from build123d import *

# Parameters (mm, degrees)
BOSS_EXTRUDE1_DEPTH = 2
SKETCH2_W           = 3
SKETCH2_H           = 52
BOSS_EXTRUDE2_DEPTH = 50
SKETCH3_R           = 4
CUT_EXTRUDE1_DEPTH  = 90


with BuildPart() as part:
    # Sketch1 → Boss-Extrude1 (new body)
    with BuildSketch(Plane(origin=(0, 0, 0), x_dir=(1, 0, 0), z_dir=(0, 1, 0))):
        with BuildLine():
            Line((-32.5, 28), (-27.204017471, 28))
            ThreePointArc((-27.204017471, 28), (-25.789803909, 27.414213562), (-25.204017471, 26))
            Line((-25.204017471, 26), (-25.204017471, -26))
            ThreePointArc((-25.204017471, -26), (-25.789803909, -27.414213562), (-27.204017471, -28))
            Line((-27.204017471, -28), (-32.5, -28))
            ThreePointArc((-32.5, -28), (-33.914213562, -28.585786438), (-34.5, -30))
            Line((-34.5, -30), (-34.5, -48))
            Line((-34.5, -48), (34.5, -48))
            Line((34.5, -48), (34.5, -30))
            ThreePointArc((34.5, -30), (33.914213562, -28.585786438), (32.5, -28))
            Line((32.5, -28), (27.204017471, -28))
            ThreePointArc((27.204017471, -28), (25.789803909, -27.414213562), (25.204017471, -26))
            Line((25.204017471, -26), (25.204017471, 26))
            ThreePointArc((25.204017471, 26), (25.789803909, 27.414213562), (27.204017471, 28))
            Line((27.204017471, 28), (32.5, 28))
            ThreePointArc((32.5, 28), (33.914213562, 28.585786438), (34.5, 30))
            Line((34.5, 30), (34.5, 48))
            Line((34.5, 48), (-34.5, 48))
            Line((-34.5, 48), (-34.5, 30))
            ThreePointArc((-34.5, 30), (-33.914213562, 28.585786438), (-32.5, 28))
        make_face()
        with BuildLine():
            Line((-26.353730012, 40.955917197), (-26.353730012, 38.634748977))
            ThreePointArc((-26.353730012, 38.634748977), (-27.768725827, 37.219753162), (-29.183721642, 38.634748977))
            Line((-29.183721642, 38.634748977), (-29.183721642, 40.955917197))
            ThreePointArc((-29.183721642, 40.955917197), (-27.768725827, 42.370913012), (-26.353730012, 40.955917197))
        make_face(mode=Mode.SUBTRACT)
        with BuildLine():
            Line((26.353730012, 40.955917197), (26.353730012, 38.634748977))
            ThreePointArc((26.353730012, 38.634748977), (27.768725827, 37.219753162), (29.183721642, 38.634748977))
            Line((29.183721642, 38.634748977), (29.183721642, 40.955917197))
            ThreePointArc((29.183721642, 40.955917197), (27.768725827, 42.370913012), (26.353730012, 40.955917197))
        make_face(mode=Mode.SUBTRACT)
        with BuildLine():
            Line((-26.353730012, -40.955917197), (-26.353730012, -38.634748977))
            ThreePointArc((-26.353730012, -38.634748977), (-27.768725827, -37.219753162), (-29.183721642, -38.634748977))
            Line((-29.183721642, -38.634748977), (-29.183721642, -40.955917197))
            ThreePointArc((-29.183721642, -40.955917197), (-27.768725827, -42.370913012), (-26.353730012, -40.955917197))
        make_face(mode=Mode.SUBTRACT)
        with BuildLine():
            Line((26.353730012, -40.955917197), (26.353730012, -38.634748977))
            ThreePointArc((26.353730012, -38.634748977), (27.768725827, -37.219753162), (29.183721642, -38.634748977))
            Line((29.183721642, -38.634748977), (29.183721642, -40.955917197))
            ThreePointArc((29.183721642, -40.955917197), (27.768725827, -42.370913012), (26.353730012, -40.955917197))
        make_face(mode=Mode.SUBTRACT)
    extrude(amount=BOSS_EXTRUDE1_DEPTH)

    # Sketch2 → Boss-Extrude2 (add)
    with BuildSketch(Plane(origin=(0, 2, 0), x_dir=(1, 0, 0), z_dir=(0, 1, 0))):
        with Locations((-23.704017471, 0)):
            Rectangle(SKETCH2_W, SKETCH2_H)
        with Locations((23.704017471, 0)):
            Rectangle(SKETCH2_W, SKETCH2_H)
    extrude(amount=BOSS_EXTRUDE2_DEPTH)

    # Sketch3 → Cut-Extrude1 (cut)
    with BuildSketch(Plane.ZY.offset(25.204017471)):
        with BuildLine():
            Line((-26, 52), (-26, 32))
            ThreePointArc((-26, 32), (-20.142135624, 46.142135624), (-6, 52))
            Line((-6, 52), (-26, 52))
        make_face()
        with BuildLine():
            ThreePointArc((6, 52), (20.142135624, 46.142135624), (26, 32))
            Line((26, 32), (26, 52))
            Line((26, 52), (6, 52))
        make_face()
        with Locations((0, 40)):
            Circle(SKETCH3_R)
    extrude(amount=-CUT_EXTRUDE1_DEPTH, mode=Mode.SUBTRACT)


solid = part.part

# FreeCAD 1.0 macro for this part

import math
import FreeCAD as App
import Part
import Sketcher
Q = App.Units.Quantity

doc = App.newDocument("Part")
params = doc.addObject("Spreadsheet::Sheet", "Params")
for row, (alias, value) in enumerate([
    ("sketch1_radius", "2 mm"),
    ("sketch1_width", "69 mm"),
    ("sketch1_height", "52 mm"),
    ("sketch1_height2", "18 mm"),
    ("pad1_length", "2 mm"),
    ("sketch2_width", "3 mm"),
    ("sketch2_height", "52 mm"),
    ("pad2_length", "50 mm"),
    ("sketch3_diameter", "8 mm"),
    ("sketch3_radius", "20 mm"),
    ("pocket1_length", "90 mm"),
], start=1):
    params.set(f"A{row}", alias)
    params.set(f"B{row}", "=" + value)
    params.setAlias(f"B{row}", alias)

body = doc.addObject("PartDesign::Body", "Body")

# Sketch on XZ plane
sketch1 = body.newObject("Sketcher::SketchObject", "Sketch")
sketch1.AttachmentSupport = (doc.getObject("XZ_Plane"), [""])
sketch1.MapMode = "FlatFace"
sketch1.addGeometry([
    Part.LineSegment(App.Vector(-32.5, -28, 0), App.Vector(-27.2, -28, 0)),  # 0
    Part.ArcOfCircle(Part.Circle(App.Vector(-27.2, -26, 0), App.Vector(0, 0, 1), 2), math.radians(-90), math.radians(0)),  # 1
    Part.LineSegment(App.Vector(-25.2, -26, 0), App.Vector(-25.2, 26, 0)),  # 2
    Part.ArcOfCircle(Part.Circle(App.Vector(-27.2, 26, 0), App.Vector(0, 0, 1), 2), math.radians(0), math.radians(90)),  # 3
    Part.LineSegment(App.Vector(-27.2, 28, 0), App.Vector(-32.5, 28, 0)),  # 4
    Part.ArcOfCircle(Part.Circle(App.Vector(-32.5, 30, 0), App.Vector(0, 0, 1), 2), math.radians(-180), math.radians(-90)),  # 5
    Part.LineSegment(App.Vector(-34.5, 30, 0), App.Vector(-34.5, 48, 0)),  # 6
    Part.LineSegment(App.Vector(-34.5, 48, 0), App.Vector(34.5, 48, 0)),  # 7
    Part.LineSegment(App.Vector(34.5, 48, 0), App.Vector(34.5, 30, 0)),  # 8
    Part.ArcOfCircle(Part.Circle(App.Vector(32.5, 30, 0), App.Vector(0, 0, 1), 2), math.radians(-90), math.radians(0)),  # 9
    Part.LineSegment(App.Vector(32.5, 28, 0), App.Vector(27.2, 28, 0)),  # 10
    Part.ArcOfCircle(Part.Circle(App.Vector(27.2, 26, 0), App.Vector(0, 0, 1), 2), math.radians(90), math.radians(180)),  # 11
    Part.LineSegment(App.Vector(25.2, 26, 0), App.Vector(25.2, -26, 0)),  # 12
    Part.ArcOfCircle(Part.Circle(App.Vector(27.2, -26, 0), App.Vector(0, 0, 1), 2), math.radians(-180), math.radians(-90)),  # 13
    Part.LineSegment(App.Vector(27.2, -28, 0), App.Vector(32.5, -28, 0)),  # 14
    Part.ArcOfCircle(Part.Circle(App.Vector(32.5, -30, 0), App.Vector(0, 0, 1), 2), math.radians(0), math.radians(90)),  # 15
    Part.LineSegment(App.Vector(34.5, -30, 0), App.Vector(34.5, -48, 0)),  # 16
    Part.LineSegment(App.Vector(34.5, -48, 0), App.Vector(-34.5, -48, 0)),  # 17
    Part.LineSegment(App.Vector(-34.5, -48, 0), App.Vector(-34.5, -30, 0)),  # 18
    Part.ArcOfCircle(Part.Circle(App.Vector(-32.5, -30, 0), App.Vector(0, 0, 1), 2), math.radians(90), math.radians(180)),  # 19
    Part.LineSegment(App.Vector(-26.4, 38.6, 0), App.Vector(-26.4, 41, 0)),  # 20
    Part.ArcOfCircle(Part.Circle(App.Vector(-27.8, 41, 0), App.Vector(0, 0, 1), 1.4), math.radians(0), math.radians(180)),  # 21
    Part.LineSegment(App.Vector(-29.2, 41, 0), App.Vector(-29.2, 38.6, 0)),  # 22
    Part.ArcOfCircle(Part.Circle(App.Vector(-27.8, 38.6, 0), App.Vector(0, 0, 1), 1.4), math.radians(180), math.radians(360)),  # 23
    Part.ArcOfCircle(Part.Circle(App.Vector(27.8, 41, 0), App.Vector(0, 0, 1), 1.4), math.radians(0), math.radians(180)),  # 24
    Part.LineSegment(App.Vector(26.4, 41, 0), App.Vector(26.4, 38.6, 0)),  # 25
    Part.ArcOfCircle(Part.Circle(App.Vector(27.8, 38.6, 0), App.Vector(0, 0, 1), 1.4), math.radians(180), math.radians(360)),  # 26
    Part.LineSegment(App.Vector(29.2, 38.6, 0), App.Vector(29.2, 41, 0)),  # 27
    Part.ArcOfCircle(Part.Circle(App.Vector(-27.8, -41, 0), App.Vector(0, 0, 1), 1.4), math.radians(180), math.radians(360)),  # 28
    Part.LineSegment(App.Vector(-26.4, -41, 0), App.Vector(-26.4, -38.6, 0)),  # 29
    Part.ArcOfCircle(Part.Circle(App.Vector(-27.8, -38.6, 0), App.Vector(0, 0, 1), 1.4), math.radians(0), math.radians(180)),  # 30
    Part.LineSegment(App.Vector(-29.2, -38.6, 0), App.Vector(-29.2, -41, 0)),  # 31
    Part.LineSegment(App.Vector(26.4, -38.6, 0), App.Vector(26.4, -41, 0)),  # 32
    Part.ArcOfCircle(Part.Circle(App.Vector(27.8, -41, 0), App.Vector(0, 0, 1), 1.4), math.radians(180), math.radians(360)),  # 33
    Part.LineSegment(App.Vector(29.2, -41, 0), App.Vector(29.2, -38.6, 0)),  # 34
    Part.ArcOfCircle(Part.Circle(App.Vector(27.8, -38.6, 0), App.Vector(0, 0, 1), 1.4), math.radians(0), math.radians(180)),  # 35
], False)
sketch1.addConstraint([
    Sketcher.Constraint("Tangent", 0, 2, 1, 1),
    Sketcher.Constraint("Tangent", 1, 2, 2, 1),
    Sketcher.Constraint("Tangent", 2, 2, 3, 1),
    Sketcher.Constraint("Tangent", 3, 2, 4, 1),
    Sketcher.Constraint("Tangent", 4, 2, 5, 2),
    Sketcher.Constraint("Tangent", 5, 1, 6, 1),
    Sketcher.Constraint("Coincident", 6, 2, 7, 1),
    Sketcher.Constraint("Coincident", 7, 2, 8, 1),
    Sketcher.Constraint("Tangent", 8, 2, 9, 2),
    Sketcher.Constraint("Tangent", 9, 1, 10, 1),
    Sketcher.Constraint("Tangent", 10, 2, 11, 1),
    Sketcher.Constraint("Tangent", 11, 2, 12, 1),
    Sketcher.Constraint("Tangent", 12, 2, 13, 1),
    Sketcher.Constraint("Tangent", 13, 2, 14, 1),
    Sketcher.Constraint("Tangent", 14, 2, 15, 2),
    Sketcher.Constraint("Tangent", 15, 1, 16, 1),
    Sketcher.Constraint("Coincident", 16, 2, 17, 1),
    Sketcher.Constraint("Coincident", 17, 2, 18, 1),
    Sketcher.Constraint("Tangent", 18, 2, 19, 2),
    Sketcher.Constraint("Tangent", 19, 1, 0, 1),
    Sketcher.Constraint("Tangent", 20, 2, 21, 1),
    Sketcher.Constraint("Tangent", 21, 2, 22, 1),
    Sketcher.Constraint("Tangent", 22, 2, 23, 1),
    Sketcher.Constraint("Tangent", 23, 2, 20, 1),
    Sketcher.Constraint("Tangent", 24, 2, 25, 1),
    Sketcher.Constraint("Tangent", 25, 2, 26, 1),
    Sketcher.Constraint("Tangent", 26, 2, 27, 1),
    Sketcher.Constraint("Tangent", 27, 2, 24, 1),
    Sketcher.Constraint("Tangent", 28, 2, 29, 1),
    Sketcher.Constraint("Tangent", 29, 2, 30, 1),
    Sketcher.Constraint("Tangent", 30, 2, 31, 1),
    Sketcher.Constraint("Tangent", 31, 2, 28, 1),
    Sketcher.Constraint("Tangent", 32, 2, 33, 1),
    Sketcher.Constraint("Tangent", 33, 2, 34, 1),
    Sketcher.Constraint("Tangent", 34, 2, 35, 1),
    Sketcher.Constraint("Tangent", 35, 2, 32, 1),
    Sketcher.Constraint("Horizontal", 0),
    Sketcher.Constraint("Vertical", 2),
    Sketcher.Constraint("Horizontal", 4),
    Sketcher.Constraint("Vertical", 6),
    Sketcher.Constraint("Horizontal", 7),
    Sketcher.Constraint("Vertical", 8),
    Sketcher.Constraint("Horizontal", 10),
    Sketcher.Constraint("Vertical", 12),
    Sketcher.Constraint("Horizontal", 14),
    Sketcher.Constraint("Vertical", 16),
    Sketcher.Constraint("Horizontal", 17),
    Sketcher.Constraint("Vertical", 18),
    Sketcher.Constraint("Vertical", 20),
    Sketcher.Constraint("Vertical", 22),
    Sketcher.Constraint("Vertical", 25),
    Sketcher.Constraint("Vertical", 27),
    Sketcher.Constraint("Vertical", 29),
    Sketcher.Constraint("Vertical", 31),
    Sketcher.Constraint("Vertical", 32),
    Sketcher.Constraint("Vertical", 34),
    Sketcher.Constraint("Equal", 1, 3),
    Sketcher.Constraint("Equal", 3, 5),
    Sketcher.Constraint("Equal", 5, 9),
    Sketcher.Constraint("Equal", 9, 11),
    Sketcher.Constraint("Equal", 11, 13),
    Sketcher.Constraint("Equal", 13, 15),
    Sketcher.Constraint("Equal", 15, 19),
    Sketcher.Constraint("Equal", 23, 24),
    Sketcher.Constraint("Equal", 26, 28),
    Sketcher.Constraint("Equal", 30, 33),
    Sketcher.Constraint("Symmetric", 1, 3, 11, 3, -1, 1),
    Sketcher.Constraint("Symmetric", 5, 3, 15, 3, -1, 1),
    Sketcher.Constraint("Symmetric", 24, 3, 28, 3, -1, 1),
    Sketcher.Constraint("Symmetric", 21, 3, 33, 3, -1, 1),
    Sketcher.Constraint("Symmetric", 7, 2, 17, 2, -1, 1),
    Sketcher.Constraint("Symmetric", 5, 3, 9, 3, -2),
    Sketcher.Constraint("Symmetric", 21, 3, 24, 3, -2),
    Sketcher.Constraint("Horizontal", 23, 3, 26, 3),
    Sketcher.Constraint("Horizontal", 30, 3, 35, 3),
    Sketcher.Constraint("Equal", 27, 29),
    Sketcher.Constraint("Radius", 1, Q("2 mm")),
    Sketcher.Constraint("DistanceX", 7, 1, 7, 2, Q("69 mm")),
    Sketcher.Constraint("DistanceY", 2, 1, 2, 2, Q("52 mm")),
    Sketcher.Constraint("DistanceY", 6, 1, 6, 2, Q("18 mm")),
    Sketcher.Constraint("Radius", 21, Q("1.414996 mm")),
    Sketcher.Constraint("DistanceY", 20, 1, 20, 2, Q("2.321168 mm")),
    Sketcher.Constraint("DistanceX", 0, 1, 0, 2, Q("5.295983 mm")),
    Sketcher.Constraint("DistanceY", -1, 1, 23, 3, Q("38.634749 mm")),
    Sketcher.Constraint("DistanceX", 20, 2, -1, 1, Q("26.35373 mm")),
])
sketch1.setExpression("Constraints[76]", "Params.sketch1_radius")
sketch1.setExpression("Constraints[77]", "Params.sketch1_width")
sketch1.setExpression("Constraints[78]", "Params.sketch1_height")
sketch1.setExpression("Constraints[79]", "Params.sketch1_height2")
pad1 = body.newObject("PartDesign::Pad", "Pad")
pad1.Profile = sketch1
pad1.setExpression("Length", "Params.pad1_length")
pad1.Reversed = True

# Sketch on XZ plane
sketch2 = body.newObject("Sketcher::SketchObject", "Sketch001")
sketch2.AttachmentSupport = (doc.getObject("XZ_Plane"), [""])
sketch2.MapMode = "FlatFace"
sketch2.AttachmentOffset = App.Placement(App.Vector(0, 0, -2), App.Rotation())
sketch2.addGeometry([
    Part.LineSegment(App.Vector(-25.2, -26, 0), App.Vector(-25.2, 26, 0)),  # 0
    Part.LineSegment(App.Vector(-25.2, 26, 0), App.Vector(-22.2, 26, 0)),  # 1
    Part.LineSegment(App.Vector(-22.2, 26, 0), App.Vector(-22.2, -26, 0)),  # 2
    Part.LineSegment(App.Vector(-22.2, -26, 0), App.Vector(-25.2, -26, 0)),  # 3
    Part.LineSegment(App.Vector(22.2, -26, 0), App.Vector(22.2, 26, 0)),  # 4
    Part.LineSegment(App.Vector(22.2, 26, 0), App.Vector(25.2, 26, 0)),  # 5
    Part.LineSegment(App.Vector(25.2, 26, 0), App.Vector(25.2, -26, 0)),  # 6
    Part.LineSegment(App.Vector(25.2, -26, 0), App.Vector(22.2, -26, 0)),  # 7
], False)
sketch2.addConstraint([
    Sketcher.Constraint("Coincident", 0, 2, 1, 1),
    Sketcher.Constraint("Coincident", 1, 2, 2, 1),
    Sketcher.Constraint("Coincident", 2, 2, 3, 1),
    Sketcher.Constraint("Coincident", 3, 2, 0, 1),
    Sketcher.Constraint("Coincident", 4, 2, 5, 1),
    Sketcher.Constraint("Coincident", 5, 2, 6, 1),
    Sketcher.Constraint("Coincident", 6, 2, 7, 1),
    Sketcher.Constraint("Coincident", 7, 2, 4, 1),
    Sketcher.Constraint("Vertical", 0),
    Sketcher.Constraint("Horizontal", 1),
    Sketcher.Constraint("Vertical", 2),
    Sketcher.Constraint("Horizontal", 3),
    Sketcher.Constraint("Vertical", 4),
    Sketcher.Constraint("Horizontal", 5),
    Sketcher.Constraint("Vertical", 6),
    Sketcher.Constraint("Horizontal", 7),
    Sketcher.Constraint("Symmetric", 2, 2, 4, 2, -1, 1),
    Sketcher.Constraint("Symmetric", 0, 2, 6, 2, -1, 1),
    Sketcher.Constraint("Horizontal", 1, 2, 4, 2),
    Sketcher.Constraint("DistanceX", 1, 1, 1, 2, Q("3 mm")),
    Sketcher.Constraint("DistanceY", 0, 1, 0, 2, Q("52 mm")),
    Sketcher.Constraint("DistanceX", 0, 2, -1, 1, Q("25.204017 mm")),
])
sketch2.setExpression("Constraints[19]", "Params.sketch2_width")
sketch2.setExpression("Constraints[20]", "Params.sketch2_height")
pad2 = body.newObject("PartDesign::Pad", "Pad001")
pad2.Profile = sketch2
pad2.setExpression("Length", "Params.pad2_length")
pad2.Reversed = True

# Sketch on YZ plane
sketch3 = body.newObject("Sketcher::SketchObject", "Sketch002")
sketch3.AttachmentSupport = (doc.getObject("YZ_Plane"), [""])
sketch3.MapMode = "FlatFace"
sketch3.AttachmentOffset = App.Placement(App.Vector(0, 0, -25.204017), App.Rotation())
sketch3.addGeometry([
    Part.LineSegment(App.Vector(52, -26, 0), App.Vector(32, -26, 0)),  # 0
    Part.ArcOfCircle(Part.Circle(App.Vector(32, -6, 0), App.Vector(0, 0, 1), 20), math.radians(-90), math.radians(0)),  # 1
    Part.LineSegment(App.Vector(52, -6, 0), App.Vector(52, -26, 0)),  # 2
    Part.ArcOfCircle(Part.Circle(App.Vector(32, 6, 0), App.Vector(0, 0, 1), 20), math.radians(0), math.radians(90)),  # 3
    Part.LineSegment(App.Vector(32, 26, 0), App.Vector(52, 26, 0)),  # 4
    Part.LineSegment(App.Vector(52, 26, 0), App.Vector(52, 6, 0)),  # 5
    Part.Circle(App.Vector(40, 0, 0), App.Vector(0, 0, 1), 4),  # 6
], False)
sketch3.addConstraint([
    Sketcher.Constraint("Tangent", 0, 2, 1, 1),
    Sketcher.Constraint("Tangent", 1, 2, 2, 1),
    Sketcher.Constraint("Coincident", 2, 2, 0, 1),
    Sketcher.Constraint("Tangent", 3, 2, 4, 1),
    Sketcher.Constraint("Coincident", 4, 2, 5, 1),
    Sketcher.Constraint("Tangent", 5, 2, 3, 1),
    Sketcher.Constraint("Horizontal", 0),
    Sketcher.Constraint("Vertical", 2),
    Sketcher.Constraint("Horizontal", 4),
    Sketcher.Constraint("Vertical", 5),
    Sketcher.Constraint("Equal", 1, 3),
    Sketcher.Constraint("Symmetric", 1, 3, 3, 3, -1),
    Sketcher.Constraint("PointOnObject", 6, 3, -1),
    Sketcher.Constraint("Diameter", 6, Q("8 mm")),
    Sketcher.Constraint("Radius", 1, Q("20 mm")),
    Sketcher.Constraint("DistanceX", -1, 1, 1, 3, Q("32 mm")),
    Sketcher.Constraint("DistanceY", 1, 3, -1, 1, Q("6 mm")),
    Sketcher.Constraint("DistanceX", -1, 1, 6, 3, Q("40 mm")),
])
sketch3.setExpression("Constraints[13]", "Params.sketch3_diameter")
sketch3.setExpression("Constraints[14]", "Params.sketch3_radius")
pocket1 = body.newObject("PartDesign::Pocket", "Pocket")
pocket1.Profile = sketch3
pocket1.setExpression("Length", "Params.pocket1_length")
pocket1.Reversed = True

doc.recompute()
